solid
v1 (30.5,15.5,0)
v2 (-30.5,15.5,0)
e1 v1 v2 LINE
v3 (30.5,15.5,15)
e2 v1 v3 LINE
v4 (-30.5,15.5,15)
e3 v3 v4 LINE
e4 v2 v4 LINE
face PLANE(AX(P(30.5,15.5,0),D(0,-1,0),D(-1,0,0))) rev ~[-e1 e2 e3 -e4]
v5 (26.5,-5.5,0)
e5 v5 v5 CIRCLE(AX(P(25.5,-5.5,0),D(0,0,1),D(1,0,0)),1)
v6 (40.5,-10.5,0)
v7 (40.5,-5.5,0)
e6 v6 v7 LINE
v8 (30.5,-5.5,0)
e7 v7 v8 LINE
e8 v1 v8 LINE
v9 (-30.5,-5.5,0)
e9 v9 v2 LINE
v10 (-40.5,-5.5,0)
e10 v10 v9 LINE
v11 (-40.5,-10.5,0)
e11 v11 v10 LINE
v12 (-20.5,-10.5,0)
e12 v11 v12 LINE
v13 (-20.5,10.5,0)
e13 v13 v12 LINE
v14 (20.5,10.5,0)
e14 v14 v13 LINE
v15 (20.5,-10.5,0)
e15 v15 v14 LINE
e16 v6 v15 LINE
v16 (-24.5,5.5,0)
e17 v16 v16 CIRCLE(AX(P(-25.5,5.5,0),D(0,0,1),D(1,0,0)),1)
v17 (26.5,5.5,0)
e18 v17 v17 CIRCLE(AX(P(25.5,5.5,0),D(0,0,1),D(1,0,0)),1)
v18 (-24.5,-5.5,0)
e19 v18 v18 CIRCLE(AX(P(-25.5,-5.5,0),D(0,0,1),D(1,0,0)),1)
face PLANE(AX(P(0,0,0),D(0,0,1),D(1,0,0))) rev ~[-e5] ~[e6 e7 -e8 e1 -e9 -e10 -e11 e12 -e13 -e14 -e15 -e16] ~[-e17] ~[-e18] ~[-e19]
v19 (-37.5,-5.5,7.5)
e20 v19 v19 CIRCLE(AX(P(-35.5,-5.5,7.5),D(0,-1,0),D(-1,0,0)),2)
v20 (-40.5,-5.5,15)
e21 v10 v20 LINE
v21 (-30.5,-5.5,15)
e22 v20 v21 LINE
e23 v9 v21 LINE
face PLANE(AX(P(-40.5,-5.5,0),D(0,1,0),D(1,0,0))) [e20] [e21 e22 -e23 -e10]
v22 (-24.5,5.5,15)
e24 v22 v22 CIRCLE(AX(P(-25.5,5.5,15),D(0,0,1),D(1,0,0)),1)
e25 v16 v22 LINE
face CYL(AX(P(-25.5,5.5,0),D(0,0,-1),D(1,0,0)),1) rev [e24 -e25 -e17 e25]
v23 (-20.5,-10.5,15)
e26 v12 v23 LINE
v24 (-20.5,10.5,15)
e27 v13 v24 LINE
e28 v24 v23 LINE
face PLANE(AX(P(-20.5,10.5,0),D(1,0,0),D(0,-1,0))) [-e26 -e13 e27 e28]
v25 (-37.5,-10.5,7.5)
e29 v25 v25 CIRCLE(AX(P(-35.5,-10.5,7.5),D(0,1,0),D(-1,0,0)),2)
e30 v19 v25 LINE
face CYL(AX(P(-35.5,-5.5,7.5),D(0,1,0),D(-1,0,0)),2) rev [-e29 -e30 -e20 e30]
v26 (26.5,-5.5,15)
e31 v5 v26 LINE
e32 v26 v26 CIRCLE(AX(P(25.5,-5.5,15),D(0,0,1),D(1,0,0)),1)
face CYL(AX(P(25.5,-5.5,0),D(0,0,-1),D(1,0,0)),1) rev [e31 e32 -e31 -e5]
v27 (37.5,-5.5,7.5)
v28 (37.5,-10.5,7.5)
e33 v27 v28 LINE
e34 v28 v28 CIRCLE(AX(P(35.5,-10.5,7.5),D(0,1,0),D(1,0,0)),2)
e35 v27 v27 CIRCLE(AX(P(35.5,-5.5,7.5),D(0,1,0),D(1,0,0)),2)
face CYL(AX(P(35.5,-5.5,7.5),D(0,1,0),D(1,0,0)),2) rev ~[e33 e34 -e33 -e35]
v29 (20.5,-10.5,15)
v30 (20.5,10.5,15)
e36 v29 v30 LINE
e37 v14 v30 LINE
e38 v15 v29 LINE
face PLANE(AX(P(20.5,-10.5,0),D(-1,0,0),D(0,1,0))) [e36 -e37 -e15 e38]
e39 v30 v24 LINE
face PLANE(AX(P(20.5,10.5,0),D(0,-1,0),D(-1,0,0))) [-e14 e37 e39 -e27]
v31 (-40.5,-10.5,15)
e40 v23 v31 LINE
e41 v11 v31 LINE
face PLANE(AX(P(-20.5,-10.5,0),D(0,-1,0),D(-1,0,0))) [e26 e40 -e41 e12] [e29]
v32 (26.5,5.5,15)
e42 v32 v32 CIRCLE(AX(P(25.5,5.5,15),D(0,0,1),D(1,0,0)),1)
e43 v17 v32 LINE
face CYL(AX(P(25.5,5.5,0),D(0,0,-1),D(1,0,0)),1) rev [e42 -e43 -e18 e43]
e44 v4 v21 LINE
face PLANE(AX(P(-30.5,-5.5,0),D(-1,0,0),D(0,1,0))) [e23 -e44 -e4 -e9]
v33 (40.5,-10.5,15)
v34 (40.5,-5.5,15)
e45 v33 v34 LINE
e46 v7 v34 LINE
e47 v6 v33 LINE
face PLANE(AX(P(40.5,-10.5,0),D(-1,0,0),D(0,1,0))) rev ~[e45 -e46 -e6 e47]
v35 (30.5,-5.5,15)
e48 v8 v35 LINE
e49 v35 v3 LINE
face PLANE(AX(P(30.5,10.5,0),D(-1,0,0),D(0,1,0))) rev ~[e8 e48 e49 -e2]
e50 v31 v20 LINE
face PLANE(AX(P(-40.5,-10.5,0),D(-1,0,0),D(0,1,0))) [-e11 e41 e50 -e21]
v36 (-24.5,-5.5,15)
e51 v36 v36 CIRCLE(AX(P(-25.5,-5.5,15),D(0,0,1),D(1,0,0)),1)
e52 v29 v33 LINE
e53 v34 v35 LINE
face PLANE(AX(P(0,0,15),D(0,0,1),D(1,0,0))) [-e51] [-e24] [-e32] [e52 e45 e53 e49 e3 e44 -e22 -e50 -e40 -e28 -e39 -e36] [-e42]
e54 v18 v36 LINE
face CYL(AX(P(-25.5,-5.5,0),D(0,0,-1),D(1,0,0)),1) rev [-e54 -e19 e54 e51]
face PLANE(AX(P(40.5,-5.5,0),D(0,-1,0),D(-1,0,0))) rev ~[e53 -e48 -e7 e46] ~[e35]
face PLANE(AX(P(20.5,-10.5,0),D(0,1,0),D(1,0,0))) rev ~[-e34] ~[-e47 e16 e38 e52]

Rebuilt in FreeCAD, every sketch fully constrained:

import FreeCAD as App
import Part
import Sketcher

doc = App.newDocument("Part")
body = doc.addObject("PartDesign::Body", "Body")

# Sketch on XY plane
sketch1 = body.newObject("Sketcher::SketchObject", "Sketch")
sketch1.AttachmentSupport = (doc.getObject("XY_Plane"), [""])
sketch1.MapMode = "FlatFace"
sketch1.addGeometry(Part.LineSegment(App.Vector(-20.5, -10.5, 0), App.Vector(-20.5, 10.5, 0)), False)
sketch1.addGeometry(Part.LineSegment(App.Vector(-20.5, 10.5, 0), App.Vector(20.5, 10.5, 0)), False)
sketch1.addGeometry(Part.LineSegment(App.Vector(20.5, 10.5, 0), App.Vector(20.5, -10.5, 0)), False)
sketch1.addGeometry(Part.LineSegment(App.Vector(20.5, -10.5, 0), App.Vector(40.5, -10.5, 0)), False)
sketch1.addGeometry(Part.LineSegment(App.Vector(40.5, -10.5, 0), App.Vector(40.5, -5.5, 0)), False)
sketch1.addGeometry(Part.LineSegment(App.Vector(40.5, -5.5, 0), App.Vector(30.5, -5.5, 0)), False)
sketch1.addGeometry(Part.LineSegment(App.Vector(30.5, -5.5, 0), App.Vector(30.5, 15.5, 0)), False)
sketch1.addGeometry(Part.LineSegment(App.Vector(30.5, 15.5, 0), App.Vector(-30.5, 15.5, 0)), False)
sketch1.addGeometry(Part.LineSegment(App.Vector(-30.5, 15.5, 0), App.Vector(-30.5, -5.5, 0)), False)
sketch1.addGeometry(Part.LineSegment(App.Vector(-30.5, -5.5, 0), App.Vector(-40.5, -5.5, 0)), False)
sketch1.addGeometry(Part.LineSegment(App.Vector(-40.5, -5.5, 0), App.Vector(-40.5, -10.5, 0)), False)
sketch1.addGeometry(Part.LineSegment(App.Vector(-40.5, -10.5, 0), App.Vector(-20.5, -10.5, 0)), False)
sketch1.addGeometry(Part.Circle(App.Vector(-25.5, -5.5, 0), App.Vector(0, 0, 1), 1), False)
sketch1.addGeometry(Part.Circle(App.Vector(-25.5, 5.5, 0), App.Vector(0, 0, 1), 1), False)
sketch1.addGeometry(Part.Circle(App.Vector(25.5, 5.5, 0), App.Vector(0, 0, 1), 1), False)
sketch1.addGeometry(Part.Circle(App.Vector(25.5, -5.5, 0), App.Vector(0, 0, 1), 1), False)
sketch1.addConstraint(Sketcher.Constraint("Coincident", 0, 2, 1, 1))
sketch1.addConstraint(Sketcher.Constraint("Coincident", 1, 2, 2, 1))
sketch1.addConstraint(Sketcher.Constraint("Coincident", 2, 2, 3, 1))
sketch1.addConstraint(Sketcher.Constraint("Coincident", 3, 2, 4, 1))
sketch1.addConstraint(Sketcher.Constraint("Coincident", 4, 2, 5, 1))
sketch1.addConstraint(Sketcher.Constraint("Coincident", 5, 2, 6, 1))
sketch1.addConstraint(Sketcher.Constraint("Coincident", 6, 2, 7, 1))
sketch1.addConstraint(Sketcher.Constraint("Coincident", 7, 2, 8, 1))
sketch1.addConstraint(Sketcher.Constraint("Coincident", 8, 2, 9, 1))
sketch1.addConstraint(Sketcher.Constraint("Coincident", 9, 2, 10, 1))
sketch1.addConstraint(Sketcher.Constraint("Coincident", 10, 2, 11, 1))
sketch1.addConstraint(Sketcher.Constraint("Coincident", 11, 2, 0, 1))
sketch1.addConstraint(Sketcher.Constraint("Vertical", 0))
sketch1.addConstraint(Sketcher.Constraint("Horizontal", 1))
sketch1.addConstraint(Sketcher.Constraint("Vertical", 2))
sketch1.addConstraint(Sketcher.Constraint("Horizontal", 3))
sketch1.addConstraint(Sketcher.Constraint("Vertical", 4))
sketch1.addConstraint(Sketcher.Constraint("Horizontal", 5))
sketch1.addConstraint(Sketcher.Constraint("Vertical", 6))
sketch1.addConstraint(Sketcher.Constraint("Horizontal", 7))
sketch1.addConstraint(Sketcher.Constraint("Vertical", 8))
sketch1.addConstraint(Sketcher.Constraint("Horizontal", 9))
sketch1.addConstraint(Sketcher.Constraint("Vertical", 10))
sketch1.addConstraint(Sketcher.Constraint("Horizontal", 11))
sketch1.addConstraint(Sketcher.Constraint("Equal", 12, 13))
sketch1.addConstraint(Sketcher.Constraint("Equal", 13, 14))
sketch1.addConstraint(Sketcher.Constraint("Equal", 14, 15))
sketch1.addConstraint(Sketcher.Constraint("Symmetric", 12, 3, 14, 3, -1, 1))
sketch1.addConstraint(Sketcher.Constraint("Symmetric", 13, 3, 15, 3, -1, 1))
sketch1.addConstraint(Sketcher.Constraint("Symmetric", 0, 2, 2, 2, -1, 1))
sketch1.addConstraint(Sketcher.Constraint("Symmetric", 13, 3, 14, 3, -2))
sketch1.addConstraint(Sketcher.Constraint("Symmetric", 5, 2, 8, 2, -2))
sketch1.addConstraint(Sketcher.Constraint("Symmetric", 3, 2, 10, 2, -2))
sketch1.addConstraint(Sketcher.Constraint("Horizontal", 15, 3, 4, 2))
sketch1.addConstraint(Sketcher.Constraint("Equal", 2, 6))
sketch1.addConstraint(Sketcher.Constraint("Diameter", 12, 2.0))
sketch1.addConstraint(Sketcher.Constraint("DistanceX", 1, 1, 1, 2, 41.0))
sketch1.addConstraint(Sketcher.Constraint("DistanceX", 5, 2, 5, 1, 10.0))
sketch1.addConstraint(Sketcher.Constraint("DistanceY", 0, 1, 0, 2, 21.0))
sketch1.addConstraint(Sketcher.Constraint("DistanceY", 4, 1, 4, 2, 5.0))
sketch1.addConstraint(Sketcher.Constraint("DistanceX", 13, 3, 0, 2, 5.0))
sketch1.addConstraint(Sketcher.Constraint("DistanceX", 15, 3, 5, 2, 5.0))
pad1 = body.newObject("PartDesign::Pad", "Pad")
pad1.Profile = sketch1
pad1.Length = 15

# Sketch on XZ plane
sketch2 = body.newObject("Sketcher::SketchObject", "Sketch001")
sketch2.AttachmentSupport = (doc.getObject("XZ_Plane"), [""])
sketch2.MapMode = "FlatFace"
sketch2.AttachmentOffset = App.Placement(App.Vector(0, 0, 5.5), App.Rotation())
sketch2.addGeometry(Part.Circle(App.Vector(35.5, 7.5, 0), App.Vector(0, 0, 1), 2), False)
sketch2.addConstraint(Sketcher.Constraint("Diameter", 0, 4.0))
sketch2.addConstraint(Sketcher.Constraint("DistanceX", -1, 1, 0, 3, 35.5))
sketch2.addConstraint(Sketcher.Constraint("DistanceY", -1, 1, 0, 3, 7.5))
pocket1 = body.newObject("PartDesign::Pocket", "Pocket")
pocket1.Profile = sketch2
pocket1.Type = "ThroughAll"
pocket1.Reversed = True
doc.recompute()

mirrored = body.newObject("PartDesign::Mirrored", "Mirrored")
mirrored.Originals = [pocket1]
mirrored.MirrorPlane = (doc.getObject("YZ_Plane"), [""])
body.Tip = mirrored

doc.recompute()
